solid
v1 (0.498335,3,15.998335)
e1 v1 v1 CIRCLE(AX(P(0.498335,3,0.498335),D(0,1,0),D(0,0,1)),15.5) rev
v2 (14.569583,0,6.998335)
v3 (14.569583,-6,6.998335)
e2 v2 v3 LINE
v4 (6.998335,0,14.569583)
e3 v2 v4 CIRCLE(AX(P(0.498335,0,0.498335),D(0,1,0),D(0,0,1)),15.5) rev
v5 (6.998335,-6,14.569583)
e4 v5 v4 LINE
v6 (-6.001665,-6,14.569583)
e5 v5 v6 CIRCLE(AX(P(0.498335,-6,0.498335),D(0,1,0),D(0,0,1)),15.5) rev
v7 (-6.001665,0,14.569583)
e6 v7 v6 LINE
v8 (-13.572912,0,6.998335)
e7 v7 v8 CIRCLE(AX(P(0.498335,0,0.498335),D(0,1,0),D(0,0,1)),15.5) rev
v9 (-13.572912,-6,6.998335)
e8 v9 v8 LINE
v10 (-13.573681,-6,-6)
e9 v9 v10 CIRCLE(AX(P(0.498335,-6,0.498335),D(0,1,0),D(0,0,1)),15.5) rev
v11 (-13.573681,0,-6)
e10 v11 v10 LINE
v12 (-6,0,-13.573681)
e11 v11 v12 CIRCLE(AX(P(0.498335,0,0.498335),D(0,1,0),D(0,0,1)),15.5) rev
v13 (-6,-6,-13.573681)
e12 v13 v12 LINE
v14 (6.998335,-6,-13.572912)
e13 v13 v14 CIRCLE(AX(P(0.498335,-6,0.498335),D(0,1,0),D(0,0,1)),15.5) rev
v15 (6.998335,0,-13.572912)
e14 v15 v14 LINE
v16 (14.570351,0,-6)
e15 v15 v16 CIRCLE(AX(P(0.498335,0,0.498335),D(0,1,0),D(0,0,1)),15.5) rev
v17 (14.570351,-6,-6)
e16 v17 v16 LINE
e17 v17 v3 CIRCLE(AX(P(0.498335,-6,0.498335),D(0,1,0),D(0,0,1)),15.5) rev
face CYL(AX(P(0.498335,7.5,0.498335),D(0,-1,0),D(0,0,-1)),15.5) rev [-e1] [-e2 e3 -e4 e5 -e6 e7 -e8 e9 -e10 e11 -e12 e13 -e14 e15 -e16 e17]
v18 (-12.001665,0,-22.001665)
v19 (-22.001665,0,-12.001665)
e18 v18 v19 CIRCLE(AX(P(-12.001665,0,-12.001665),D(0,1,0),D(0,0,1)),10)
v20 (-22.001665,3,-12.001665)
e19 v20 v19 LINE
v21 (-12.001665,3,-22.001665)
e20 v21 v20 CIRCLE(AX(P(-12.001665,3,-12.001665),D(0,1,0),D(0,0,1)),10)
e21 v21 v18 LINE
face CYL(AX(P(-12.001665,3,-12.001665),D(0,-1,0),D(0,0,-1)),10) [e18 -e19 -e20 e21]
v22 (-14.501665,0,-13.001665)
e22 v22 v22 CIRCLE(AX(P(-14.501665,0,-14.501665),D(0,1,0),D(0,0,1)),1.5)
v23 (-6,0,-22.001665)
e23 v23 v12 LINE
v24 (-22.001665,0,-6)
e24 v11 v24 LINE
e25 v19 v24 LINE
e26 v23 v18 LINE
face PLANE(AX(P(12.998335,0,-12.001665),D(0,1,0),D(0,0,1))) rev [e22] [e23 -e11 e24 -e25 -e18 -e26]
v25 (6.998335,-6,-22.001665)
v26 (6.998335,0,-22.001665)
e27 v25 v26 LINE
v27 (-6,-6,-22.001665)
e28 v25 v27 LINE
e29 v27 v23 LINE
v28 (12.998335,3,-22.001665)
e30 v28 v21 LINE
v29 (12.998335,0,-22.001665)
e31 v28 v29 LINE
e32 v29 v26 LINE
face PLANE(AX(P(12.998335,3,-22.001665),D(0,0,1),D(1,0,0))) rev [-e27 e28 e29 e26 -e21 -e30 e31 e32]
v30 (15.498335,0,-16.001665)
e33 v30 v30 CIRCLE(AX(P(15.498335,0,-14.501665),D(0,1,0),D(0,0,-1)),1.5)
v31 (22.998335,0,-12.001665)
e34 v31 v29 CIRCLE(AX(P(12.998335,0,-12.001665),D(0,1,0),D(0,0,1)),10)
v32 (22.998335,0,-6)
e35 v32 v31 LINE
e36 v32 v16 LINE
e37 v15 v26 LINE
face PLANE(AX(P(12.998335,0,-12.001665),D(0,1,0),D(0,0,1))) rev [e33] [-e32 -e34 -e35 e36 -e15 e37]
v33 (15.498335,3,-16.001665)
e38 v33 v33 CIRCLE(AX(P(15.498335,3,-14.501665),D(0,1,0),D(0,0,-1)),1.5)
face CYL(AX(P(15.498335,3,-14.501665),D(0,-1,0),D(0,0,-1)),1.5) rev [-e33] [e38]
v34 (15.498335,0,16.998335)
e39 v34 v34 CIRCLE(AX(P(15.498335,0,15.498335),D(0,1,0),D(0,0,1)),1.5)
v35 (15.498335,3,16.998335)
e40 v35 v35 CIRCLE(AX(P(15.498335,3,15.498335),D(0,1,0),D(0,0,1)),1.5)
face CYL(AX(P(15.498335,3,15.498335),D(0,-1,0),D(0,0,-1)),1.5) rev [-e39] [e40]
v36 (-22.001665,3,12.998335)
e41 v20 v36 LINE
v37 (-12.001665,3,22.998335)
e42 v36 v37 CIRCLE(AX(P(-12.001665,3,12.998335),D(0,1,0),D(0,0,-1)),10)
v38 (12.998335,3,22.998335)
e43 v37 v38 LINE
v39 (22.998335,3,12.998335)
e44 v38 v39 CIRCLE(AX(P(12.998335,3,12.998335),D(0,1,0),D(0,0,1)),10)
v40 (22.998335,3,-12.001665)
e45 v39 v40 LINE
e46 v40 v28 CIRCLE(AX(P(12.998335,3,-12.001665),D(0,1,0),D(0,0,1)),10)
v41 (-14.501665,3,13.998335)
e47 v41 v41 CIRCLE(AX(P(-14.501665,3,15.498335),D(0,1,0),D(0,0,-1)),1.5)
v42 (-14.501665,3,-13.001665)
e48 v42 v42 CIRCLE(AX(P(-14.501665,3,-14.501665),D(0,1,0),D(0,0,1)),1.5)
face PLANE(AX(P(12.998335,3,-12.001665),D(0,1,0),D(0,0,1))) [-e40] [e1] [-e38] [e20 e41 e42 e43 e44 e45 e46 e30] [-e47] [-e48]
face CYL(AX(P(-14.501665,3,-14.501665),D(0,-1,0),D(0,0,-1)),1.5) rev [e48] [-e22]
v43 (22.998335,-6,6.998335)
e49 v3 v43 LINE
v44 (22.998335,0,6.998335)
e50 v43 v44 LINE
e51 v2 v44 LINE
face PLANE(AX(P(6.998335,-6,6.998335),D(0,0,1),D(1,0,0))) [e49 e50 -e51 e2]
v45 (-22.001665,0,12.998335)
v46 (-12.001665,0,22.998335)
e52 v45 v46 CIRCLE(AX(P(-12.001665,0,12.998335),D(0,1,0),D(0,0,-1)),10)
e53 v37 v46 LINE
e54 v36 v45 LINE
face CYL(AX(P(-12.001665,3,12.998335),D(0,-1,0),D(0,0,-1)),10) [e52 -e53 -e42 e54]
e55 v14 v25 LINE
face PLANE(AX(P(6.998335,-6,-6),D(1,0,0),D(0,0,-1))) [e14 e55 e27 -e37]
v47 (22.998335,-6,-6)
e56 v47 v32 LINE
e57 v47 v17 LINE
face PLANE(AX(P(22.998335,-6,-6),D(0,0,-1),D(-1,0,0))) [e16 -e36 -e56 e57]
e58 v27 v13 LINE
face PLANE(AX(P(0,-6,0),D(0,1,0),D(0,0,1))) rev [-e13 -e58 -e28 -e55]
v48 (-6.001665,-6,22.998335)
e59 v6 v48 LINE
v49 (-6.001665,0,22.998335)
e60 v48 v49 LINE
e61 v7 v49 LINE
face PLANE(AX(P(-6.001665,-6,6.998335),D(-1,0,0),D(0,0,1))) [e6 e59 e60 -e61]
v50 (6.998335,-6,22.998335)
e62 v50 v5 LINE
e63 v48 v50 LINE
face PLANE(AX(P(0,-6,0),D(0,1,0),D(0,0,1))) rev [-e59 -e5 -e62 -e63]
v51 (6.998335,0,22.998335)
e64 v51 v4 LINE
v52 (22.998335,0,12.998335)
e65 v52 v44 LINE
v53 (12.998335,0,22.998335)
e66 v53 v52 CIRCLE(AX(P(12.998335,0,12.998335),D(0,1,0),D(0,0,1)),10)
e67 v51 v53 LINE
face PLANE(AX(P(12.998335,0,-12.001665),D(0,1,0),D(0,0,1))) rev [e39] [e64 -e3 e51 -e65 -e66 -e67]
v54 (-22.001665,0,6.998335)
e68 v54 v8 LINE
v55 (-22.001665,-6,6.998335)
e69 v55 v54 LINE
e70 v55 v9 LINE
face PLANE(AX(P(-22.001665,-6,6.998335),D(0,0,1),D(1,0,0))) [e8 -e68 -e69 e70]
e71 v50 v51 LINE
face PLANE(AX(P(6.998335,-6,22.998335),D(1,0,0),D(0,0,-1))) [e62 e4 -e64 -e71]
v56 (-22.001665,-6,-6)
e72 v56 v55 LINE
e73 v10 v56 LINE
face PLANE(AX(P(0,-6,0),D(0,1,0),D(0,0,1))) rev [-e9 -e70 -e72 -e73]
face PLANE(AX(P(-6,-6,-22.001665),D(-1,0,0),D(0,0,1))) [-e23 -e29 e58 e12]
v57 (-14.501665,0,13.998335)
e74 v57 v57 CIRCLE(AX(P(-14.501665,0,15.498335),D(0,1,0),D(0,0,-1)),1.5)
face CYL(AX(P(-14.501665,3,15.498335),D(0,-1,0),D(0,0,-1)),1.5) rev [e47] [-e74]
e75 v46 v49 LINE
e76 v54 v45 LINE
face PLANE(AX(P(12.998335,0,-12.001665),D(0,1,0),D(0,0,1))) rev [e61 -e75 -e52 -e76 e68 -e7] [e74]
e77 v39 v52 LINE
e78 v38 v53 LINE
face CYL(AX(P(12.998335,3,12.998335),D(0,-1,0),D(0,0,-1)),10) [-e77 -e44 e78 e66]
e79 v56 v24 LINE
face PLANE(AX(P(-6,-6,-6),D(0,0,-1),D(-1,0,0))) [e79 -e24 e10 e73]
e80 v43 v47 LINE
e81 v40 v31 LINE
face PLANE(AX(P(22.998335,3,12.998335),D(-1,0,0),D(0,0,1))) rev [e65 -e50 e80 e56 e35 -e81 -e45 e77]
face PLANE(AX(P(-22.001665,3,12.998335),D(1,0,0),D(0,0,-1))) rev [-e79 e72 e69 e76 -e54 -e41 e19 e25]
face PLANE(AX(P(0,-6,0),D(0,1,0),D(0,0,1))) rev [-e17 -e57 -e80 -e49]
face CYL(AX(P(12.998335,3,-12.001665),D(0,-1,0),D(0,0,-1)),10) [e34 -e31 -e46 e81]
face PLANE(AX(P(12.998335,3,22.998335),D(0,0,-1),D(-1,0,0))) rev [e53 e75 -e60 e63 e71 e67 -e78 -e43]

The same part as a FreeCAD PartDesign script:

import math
import FreeCAD as App
import Part
import Sketcher

V = App.Vector
Q = App.Units.Quantity

doc = App.newDocument("Part")
body = doc.addObject("PartDesign::Body", "Body")

# Sketch on XZ plane
sketch1 = doc.addObject("Sketcher::SketchObject", "Sketch")
body.addObject(sketch1)
sketch1.AttachmentSupport = (doc.XZ_Plane, [""])
sketch1.MapMode = "FlatFace"
sketch1.addGeometry(Part.LineSegment(V(-12, 23, 0), V(13, 23, 0)), False)
sketch1.addGeometry(Part.ArcOfCircle(Part.Circle(V(13, 13, 0), V(0, 0, 1), 10), math.radians(0), math.radians(90)), False)
sketch1.addGeometry(Part.LineSegment(V(23, 13, 0), V(23, -12, 0)), False)
sketch1.addGeometry(Part.ArcOfCircle(Part.Circle(V(13, -12, 0), V(0, 0, 1), 10), math.radians(-90), math.radians(0)), False)
sketch1.addGeometry(Part.LineSegment(V(13, -22, 0), V(-12, -22, 0)), False)
sketch1.addGeometry(Part.ArcOfCircle(Part.Circle(V(-12, -12, 0), V(0, 0, 1), 10), math.radians(180), math.radians(270)), False)
sketch1.addGeometry(Part.LineSegment(V(-22, -12, 0), V(-22, 13, 0)), False)
sketch1.addGeometry(Part.ArcOfCircle(Part.Circle(V(-12, 13, 0), V(0, 0, 1), 10), math.radians(90), math.radians(180)), False)
sketch1.addGeometry(Part.Circle(V(15.5, 15.5, 0), V(0, 0, 1), 1.5), False)
sketch1.addGeometry(Part.Circle(V(-14.5, 15.5, 0), V(0, 0, 1), 1.5), False)
sketch1.addGeometry(Part.Circle(V(15.5, -14.5, 0), V(0, 0, 1), 1.5), False)
sketch1.addGeometry(Part.Circle(V(-14.5, -14.5, 0), V(0, 0, 1), 1.5), False)
sketch1.addConstraint(Sketcher.Constraint("Tangent", 0, 2, 1, 2))
sketch1.addConstraint(Sketcher.Constraint("Tangent", 1, 1, 2, 1))
sketch1.addConstraint(Sketcher.Constraint("Tangent", 2, 2, 3, 2))
sketch1.addConstraint(Sketcher.Constraint("Tangent", 3, 1, 4, 1))
sketch1.addConstraint(Sketcher.Constraint("Tangent", 4, 2, 5, 2))
sketch1.addConstraint(Sketcher.Constraint("Tangent", 5, 1, 6, 1))
sketch1.addConstraint(Sketcher.Constraint("Tangent", 6, 2, 7, 2))
sketch1.addConstraint(Sketcher.Constraint("Tangent", 7, 1, 0, 1))
sketch1.addConstraint(Sketcher.Constraint("Horizontal", 0))
sketch1.addConstraint(Sketcher.Constraint("Vertical", 2))
sketch1.addConstraint(Sketcher.Constraint("Horizontal", 4))
sketch1.addConstraint(Sketcher.Constraint("Vertical", 6))
sketch1.addConstraint(Sketcher.Constraint("Equal", 1, 3))
sketch1.addConstraint(Sketcher.Constraint("Equal", 3, 5))
sketch1.addConstraint(Sketcher.Constraint("Equal", 5, 7))
sketch1.addConstraint(Sketcher.Constraint("Equal", 8, 9))
sketch1.addConstraint(Sketcher.Constraint("Equal", 9, 10))
sketch1.addConstraint(Sketcher.Constraint("Equal", 10, 11))
sketch1.addConstraint(Sketcher.Constraint("Horizontal", 8, 3, 9, 3))
sketch1.addConstraint(Sketcher.Constraint("Horizontal", 10, 3, 11, 3))
sketch1.addConstraint(Sketcher.Constraint("Vertical", 8, 3, 10, 3))
sketch1.addConstraint(Sketcher.Constraint("Vertical", 9, 3, 11, 3))
sketch1.addConstraint(Sketcher.Constraint("Equal", 4, 2))
sketch1.addConstraint(Sketcher.Constraint("Diameter", 8, Q("3 mm")))
sketch1.addConstraint(Sketcher.Constraint("Radius", 1, Q("10 mm")))
sketch1.addConstraint(Sketcher.Constraint("DistanceX", 0, 1, 0, 2, Q("25 mm")))
sketch1.addConstraint(Sketcher.Constraint("DistanceX", 9, 3, 8, 3, Q("30 mm")))
sketch1.addConstraint(Sketcher.Constraint("DistanceY", 10, 3, 8, 3, Q("30 mm")))
sketch1.addConstraint(Sketcher.Constraint("DistanceX", 1, 3, 8, 3, Q("2.5 mm")))
sketch1.addConstraint(Sketcher.Constraint("DistanceY", 1, 3, 8, 3, Q("2.5 mm")))
sketch1.addConstraint(Sketcher.Constraint("DistanceX", -1, 1, 1, 3, Q("12.998335 mm")))
sketch1.addConstraint(Sketcher.Constraint("DistanceY", -1, 1, 1, 3, Q("12.998335 mm")))
pad1 = doc.addObject("PartDesign::Pad", "Pad")
body.addObject(pad1)
pad1.Profile = sketch1
pad1.Length = 3
pad1.Reversed = True

# Sketch on XZ plane
sketch2 = doc.addObject("Sketcher::SketchObject", "Sketch001")
body.addObject(sketch2)
sketch2.AttachmentSupport = (doc.XZ_Plane, [""])
sketch2.MapMode = "FlatFace"
sketch2.addGeometry(Part.LineSegment(V(-6, -22, 0), V(-6, -6, 0)), False)
sketch2.addGeometry(Part.LineSegment(V(-6, -6, 0), V(-22, -6, 0)), False)
sketch2.addGeometry(Part.LineSegment(V(-22, -6, 0), V(-22, 7, 0)), False)
sketch2.addGeometry(Part.LineSegment(V(-22, 7, 0), V(-6, 7, 0)), False)
sketch2.addGeometry(Part.LineSegment(V(-6, 7, 0), V(-6, 23, 0)), False)
sketch2.addGeometry(Part.LineSegment(V(-6, 23, 0), V(7, 23, 0)), False)
sketch2.addGeometry(Part.LineSegment(V(7, 23, 0), V(7, 7, 0)), False)
sketch2.addGeometry(Part.LineSegment(V(7, 7, 0), V(23, 7, 0)), False)
sketch2.addGeometry(Part.LineSegment(V(23, 7, 0), V(23, -6, 0)), False)
sketch2.addGeometry(Part.LineSegment(V(23, -6, 0), V(7, -6, 0)), False)
sketch2.addGeometry(Part.LineSegment(V(7, -6, 0), V(7, -22, 0)), False)
sketch2.addGeometry(Part.LineSegment(V(7, -22, 0), V(-6, -22, 0)), False)
sketch2.addConstraint(Sketcher.Constraint("Coincident", 0, 2, 1, 1))
sketch2.addConstraint(Sketcher.Constraint("Coincident", 1, 2, 2, 1))
sketch2.addConstraint(Sketcher.Constraint("Coincident", 2, 2, 3, 1))
sketch2.addConstraint(Sketcher.Constraint("Coincident", 3, 2, 4, 1))
sketch2.addConstraint(Sketcher.Constraint("Coincident", 4, 2, 5, 1))
sketch2.addConstraint(Sketcher.Constraint("Coincident", 5, 2, 6, 1))
sketch2.addConstraint(Sketcher.Constraint("Coincident", 6, 2, 7, 1))
sketch2.addConstraint(Sketcher.Constraint("Coincident", 7, 2, 8, 1))
sketch2.addConstraint(Sketcher.Constraint("Coincident", 8, 2, 9, 1))
sketch2.addConstraint(Sketcher.Constraint("Coincident", 9, 2, 10, 1))
sketch2.addConstraint(Sketcher.Constraint("Coincident", 10, 2, 11, 1))
sketch2.addConstraint(Sketcher.Constraint("Coincident", 11, 2, 0, 1))
sketch2.addConstraint(Sketcher.Constraint("Vertical", 0))
sketch2.addConstraint(Sketcher.Constraint("Horizontal", 1))
sketch2.addConstraint(Sketcher.Constraint("Vertical", 2))
sketch2.addConstraint(Sketcher.Constraint("Horizontal", 3))
sketch2.addConstraint(Sketcher.Constraint("Vertical", 4))
sketch2.addConstraint(Sketcher.Constraint("Horizontal", 5))
sketch2.addConstraint(Sketcher.Constraint("Vertical", 6))
sketch2.addConstraint(Sketcher.Constraint("Horizontal", 7))
sketch2.addConstraint(Sketcher.Constraint("Vertical", 8))
sketch2.addConstraint(Sketcher.Constraint("Horizontal", 9))
sketch2.addConstraint(Sketcher.Constraint("Vertical", 10))
sketch2.addConstraint(Sketcher.Constraint("Horizontal", 11))
sketch2.addConstraint(Sketcher.Constraint("Horizontal", 3, 2, 6, 2))
sketch2.addConstraint(Sketcher.Constraint("Horizontal", 1, 2, 8, 2))
sketch2.addConstraint(Sketcher.Constraint("Vertical", 6, 2, 9, 2))
sketch2.addConstraint(Sketcher.Constraint("Equal", 3, 7))
sketch2.addConstraint(Sketcher.Constraint("Equal", 1, 0))
sketch2.addConstraint(Sketcher.Constraint("Equal", 11, 2))
sketch2.addConstraint(Sketcher.Constraint("Equal", 9, 4))
sketch2.addConstraint(Sketcher.Constraint("DistanceX", 3, 1, 3, 2, Q("16 mm")))
sketch2.addConstraint(Sketcher.Constraint("DistanceX", 5, 1, 5, 2, Q("13 mm")))
sketch2.addConstraint(Sketcher.Constraint("DistanceX", 0, 2, -1, 1, Q("6 mm")))
sketch2.addConstraint(Sketcher.Constraint("DistanceY", 0, 2, -1, 1, Q("6 mm")))
sketch2.addConstraint(Sketcher.Constraint("DistanceX", 1, 2, 1, 1, Q("16.001665 mm")))
pad2 = doc.addObject("PartDesign::Pad", "Pad001")
body.addObject(pad2)
pad2.Profile = sketch2
pad2.Length = 6

# Sketch on XZ plane
sketch3 = doc.addObject("Sketcher::SketchObject", "Sketch002")
body.addObject(sketch3)
sketch3.AttachmentSupport = (doc.XZ_Plane, [""])
sketch3.MapMode = "FlatFace"
sketch3.addGeometry(Part.Circle(V(0, 0, 0), V(0, 0, 1), 16), False)
sketch3.addConstraint(Sketcher.Constraint("Diameter", 0, Q("31 mm")))
sketch3.addConstraint(Sketcher.Constraint("DistanceX", -1, 1, 0, 3, Q("0.498335 mm")))
sketch3.addConstraint(Sketcher.Constraint("DistanceY", -1, 1, 0, 3, Q("0.498335 mm")))
pocket1 = doc.addObject("PartDesign::Pocket", "Pocket")
body.addObject(pocket1)
pocket1.Profile = sketch3
pocket1.Length = 15
pocket1.Midplane = True

doc.recompute()
